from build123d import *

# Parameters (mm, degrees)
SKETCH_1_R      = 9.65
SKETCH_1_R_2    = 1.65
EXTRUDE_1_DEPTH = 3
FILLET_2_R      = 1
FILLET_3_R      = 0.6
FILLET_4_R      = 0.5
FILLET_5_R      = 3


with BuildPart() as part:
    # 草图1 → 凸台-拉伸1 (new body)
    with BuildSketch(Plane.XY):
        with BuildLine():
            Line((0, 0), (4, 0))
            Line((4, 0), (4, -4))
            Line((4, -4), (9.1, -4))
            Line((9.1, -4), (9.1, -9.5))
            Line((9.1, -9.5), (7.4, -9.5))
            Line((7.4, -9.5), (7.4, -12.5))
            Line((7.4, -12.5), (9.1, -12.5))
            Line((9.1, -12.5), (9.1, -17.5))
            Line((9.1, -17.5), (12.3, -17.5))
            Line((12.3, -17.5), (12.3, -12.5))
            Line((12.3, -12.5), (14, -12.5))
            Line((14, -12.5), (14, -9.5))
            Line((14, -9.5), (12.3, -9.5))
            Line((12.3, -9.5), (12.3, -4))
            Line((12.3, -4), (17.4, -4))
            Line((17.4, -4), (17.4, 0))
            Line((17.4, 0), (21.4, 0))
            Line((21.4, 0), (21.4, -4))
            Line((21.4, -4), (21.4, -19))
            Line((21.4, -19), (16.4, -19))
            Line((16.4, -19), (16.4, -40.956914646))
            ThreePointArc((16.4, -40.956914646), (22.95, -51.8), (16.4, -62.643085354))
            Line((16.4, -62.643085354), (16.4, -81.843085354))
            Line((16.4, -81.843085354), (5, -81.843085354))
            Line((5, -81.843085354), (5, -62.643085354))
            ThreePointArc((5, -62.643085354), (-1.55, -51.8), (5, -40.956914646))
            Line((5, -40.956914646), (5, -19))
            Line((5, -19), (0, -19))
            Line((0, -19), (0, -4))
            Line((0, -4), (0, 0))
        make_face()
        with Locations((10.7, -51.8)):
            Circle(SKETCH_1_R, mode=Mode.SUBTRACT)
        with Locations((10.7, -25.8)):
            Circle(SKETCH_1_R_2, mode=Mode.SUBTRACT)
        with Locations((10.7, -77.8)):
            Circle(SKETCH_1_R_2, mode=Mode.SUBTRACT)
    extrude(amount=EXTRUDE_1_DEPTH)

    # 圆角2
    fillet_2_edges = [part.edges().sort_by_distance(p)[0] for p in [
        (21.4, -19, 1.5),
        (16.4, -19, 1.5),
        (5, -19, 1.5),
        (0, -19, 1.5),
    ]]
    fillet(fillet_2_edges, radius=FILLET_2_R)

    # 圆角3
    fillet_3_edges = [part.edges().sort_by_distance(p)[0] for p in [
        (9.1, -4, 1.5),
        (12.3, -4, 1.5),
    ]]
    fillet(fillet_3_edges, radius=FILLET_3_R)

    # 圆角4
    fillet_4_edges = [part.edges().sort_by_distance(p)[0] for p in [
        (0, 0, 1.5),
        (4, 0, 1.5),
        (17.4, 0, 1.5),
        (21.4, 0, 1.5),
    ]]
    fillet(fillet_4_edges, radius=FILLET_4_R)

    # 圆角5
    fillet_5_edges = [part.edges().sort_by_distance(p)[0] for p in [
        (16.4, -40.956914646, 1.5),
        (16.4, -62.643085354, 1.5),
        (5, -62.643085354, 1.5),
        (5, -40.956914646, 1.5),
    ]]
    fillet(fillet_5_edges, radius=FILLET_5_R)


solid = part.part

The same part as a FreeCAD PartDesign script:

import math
import FreeCAD as App
import Part
import Sketcher
Q = App.Units.Quantity


def edges_at(feature, points):
    """Names of the edges that pass closest to the given points."""
    edges = feature.Shape.Edges
    near = lambda p: min(range(len(edges)), key=lambda i: edges[i].distToShape(Part.Vertex(*p))[0])
    return sorted({f"Edge{near(p) + 1}" for p in points})

doc = App.newDocument("Part")
params = doc.addObject("Spreadsheet::Sheet", "Params")
for row, (alias, value) in enumerate([
    ("sketch1_diameter", "3.3 mm"),
    ("sketch1_diameter2", "19.3 mm"),
    ("sketch1_width", "4 mm"),
    ("sketch1_width2", "5 mm"),
    ("sketch1_height", "19 mm"),
    ("pad1_length", "3 mm"),
    ("fillet_radius", "1 mm"),
    ("fillet2_radius", "0.6 mm"),
    ("fillet3_radius", "0.5 mm"),
    ("fillet4_radius", "3 mm"),
], start=1):
    params.set(f"A{row}", alias)
    params.set(f"B{row}", "=" + value)
    params.setAlias(f"B{row}", alias)

body = doc.addObject("PartDesign::Body", "Body")

# Sketch on XY plane
sketch1 = body.newObject("Sketcher::SketchObject", "Sketch")
sketch1.AttachmentSupport = (doc.getObject("XY_Plane"), [""])
sketch1.MapMode = "FlatFace"
sketch1.addGeometry([
    Part.LineSegment(App.Vector(4, 0, 0), App.Vector(0, 0, 0)),  # 0
    Part.LineSegment(App.Vector(0, 0, 0), App.Vector(0, -19, 0)),  # 1
    Part.LineSegment(App.Vector(0, -19, 0), App.Vector(5, -19, 0)),  # 2
    Part.LineSegment(App.Vector(5, -19, 0), App.Vector(5, -41, 0)),  # 3
    Part.ArcOfCircle(Part.Circle(App.Vector(10.7, -51.8, 0), App.Vector(0, 0, 1), 12.2), math.radians(118), math.radians(242)),  # 4
    Part.LineSegment(App.Vector(5, -62.6, 0), App.Vector(5, -81.8, 0)),  # 5
    Part.LineSegment(App.Vector(5, -81.8, 0), App.Vector(16.4, -81.8, 0)),  # 6
    Part.LineSegment(App.Vector(16.4, -81.8, 0), App.Vector(16.4, -62.6, 0)),  # 7
    Part.ArcOfCircle(Part.Circle(App.Vector(10.7, -51.8, 0), App.Vector(0, 0, 1), 12.2), math.radians(-62), math.radians(62)),  # 8
    Part.LineSegment(App.Vector(16.4, -41, 0), App.Vector(16.4, -19, 0)),  # 9
    Part.LineSegment(App.Vector(16.4, -19, 0), App.Vector(21.4, -19, 0)),  # 10
    Part.LineSegment(App.Vector(21.4, -19, 0), App.Vector(21.4, 0, 0)),  # 11
    Part.LineSegment(App.Vector(21.4, 0, 0), App.Vector(17.4, 0, 0)),  # 12
    Part.LineSegment(App.Vector(17.4, 0, 0), App.Vector(17.4, -4, 0)),  # 13
    Part.LineSegment(App.Vector(17.4, -4, 0), App.Vector(12.3, -4, 0)),  # 14
    Part.LineSegment(App.Vector(12.3, -4, 0), App.Vector(12.3, -9.5, 0)),  # 15
    Part.LineSegment(App.Vector(12.3, -9.5, 0), App.Vector(14, -9.5, 0)),  # 16
    Part.LineSegment(App.Vector(14, -9.5, 0), App.Vector(14, -12.5, 0)),  # 17
    Part.LineSegment(App.Vector(14, -12.5, 0), App.Vector(12.3, -12.5, 0)),  # 18
    Part.LineSegment(App.Vector(12.3, -12.5, 0), App.Vector(12.3, -17.5, 0)),  # 19
    Part.LineSegment(App.Vector(12.3, -17.5, 0), App.Vector(9.1, -17.5, 0)),  # 20
    Part.LineSegment(App.Vector(9.1, -17.5, 0), App.Vector(9.1, -12.5, 0)),  # 21
    Part.LineSegment(App.Vector(9.1, -12.5, 0), App.Vector(7.4, -12.5, 0)),  # 22
    Part.LineSegment(App.Vector(7.4, -12.5, 0), App.Vector(7.4, -9.5, 0)),  # 23
    Part.LineSegment(App.Vector(7.4, -9.5, 0), App.Vector(9.1, -9.5, 0)),  # 24
    Part.LineSegment(App.Vector(9.1, -9.5, 0), App.Vector(9.1, -4, 0)),  # 25
    Part.LineSegment(App.Vector(9.1, -4, 0), App.Vector(4, -4, 0)),  # 26
    Part.LineSegment(App.Vector(4, -4, 0), App.Vector(4, 0, 0)),  # 27
    Part.Circle(App.Vector(10.7, -77.8, 0), App.Vector(0, 0, 1), 1.6),  # 28
    Part.Circle(App.Vector(10.7, -51.8, 0), App.Vector(0, 0, 1), 9.7),  # 29
    Part.Circle(App.Vector(10.7, -25.8, 0), App.Vector(0, 0, 1), 1.6),  # 30
], False)
sketch1.addConstraint([
    Sketcher.Constraint("Coincident", 0, 2, 1, 1),
    Sketcher.Constraint("Coincident", 1, 2, 2, 1),
    Sketcher.Constraint("Coincident", 2, 2, 3, 1),
    Sketcher.Constraint("Coincident", 3, 2, 4, 1),
    Sketcher.Constraint("Coincident", 4, 2, 5, 1),
    Sketcher.Constraint("Coincident", 5, 2, 6, 1),
    Sketcher.Constraint("Coincident", 6, 2, 7, 1),
    Sketcher.Constraint("Coincident", 7, 2, 8, 1),
    Sketcher.Constraint("Coincident", 8, 2, 9, 1),
    Sketcher.Constraint("Coincident", 9, 2, 10, 1),
    Sketcher.Constraint("Coincident", 10, 2, 11, 1),
    Sketcher.Constraint("Coincident", 11, 2, 12, 1),
    Sketcher.Constraint("Coincident", 12, 2, 13, 1),
    Sketcher.Constraint("Coincident", 13, 2, 14, 1),
    Sketcher.Constraint("Coincident", 14, 2, 15, 1),
    Sketcher.Constraint("Coincident", 15, 2, 16, 1),
    Sketcher.Constraint("Coincident", 16, 2, 17, 1),
    Sketcher.Constraint("Coincident", 17, 2, 18, 1),
    Sketcher.Constraint("Coincident", 18, 2, 19, 1),
    Sketcher.Constraint("Coincident", 19, 2, 20, 1),
    Sketcher.Constraint("Coincident", 20, 2, 21, 1),
    Sketcher.Constraint("Coincident", 21, 2, 22, 1),
    Sketcher.Constraint("Coincident", 22, 2, 23, 1),
    Sketcher.Constraint("Coincident", 23, 2, 24, 1),
    Sketcher.Constraint("Coincident", 24, 2, 25, 1),
    Sketcher.Constraint("Coincident", 25, 2, 26, 1),
    Sketcher.Constraint("Coincident", 26, 2, 27, 1),
    Sketcher.Constraint("Coincident", 27, 2, 0, 1),
    Sketcher.Constraint("Horizontal", 0),
    Sketcher.Constraint("Vertical", 1),
    Sketcher.Constraint("Horizontal", 2),
    Sketcher.Constraint("Vertical", 3),
    Sketcher.Constraint("Vertical", 5),
    Sketcher.Constraint("Horizontal", 6),
    Sketcher.Constraint("Vertical", 7),
    Sketcher.Constraint("Vertical", 9),
    Sketcher.Constraint("Horizontal", 10),
    Sketcher.Constraint("Vertical", 11),
    Sketcher.Constraint("Horizontal", 12),
    Sketcher.Constraint("Vertical", 13),
    Sketcher.Constraint("Horizontal", 14),
    Sketcher.Constraint("Vertical", 15),
    Sketcher.Constraint("Horizontal", 16),
    Sketcher.Constraint("Vertical", 17),
    Sketcher.Constraint("Horizontal", 18),
    Sketcher.Constraint("Vertical", 19),
    Sketcher.Constraint("Horizontal", 20),
    Sketcher.Constraint("Vertical", 21),
    Sketcher.Constraint("Horizontal", 22),
    Sketcher.Constraint("Vertical", 23),
    Sketcher.Constraint("Horizontal", 24),
    Sketcher.Constraint("Vertical", 25),
    Sketcher.Constraint("Horizontal", 26),
    Sketcher.Constraint("Vertical", 27),
    Sketcher.Constraint("Coincident", 0, 2, -1, 1),
    Sketcher.Constraint("Coincident", 8, 3, 4, 3),
    Sketcher.Constraint("Coincident", 29, 3, 4, 3),
    Sketcher.Constraint("Equal", 4, 8),
    Sketcher.Constraint("Equal", 28, 30),
    Sketcher.Constraint("PointOnObject", 11, 2, -1),
    Sketcher.Constraint("Horizontal", 4, 2, 7, 2),
    Sketcher.Constraint("Horizontal", 3, 2, 8, 2),
    Sketcher.Constraint("Horizontal", 2, 2, 9, 2),
    Sketcher.Constraint("Horizontal", 18, 2, 21, 2),
    Sketcher.Constraint("Horizontal", 16, 2, 23, 2),
    Sketcher.Constraint("Horizontal", 14, 2, 25, 2),
    Sketcher.Constraint("Vertical", 8, 3, 28, 3),
    Sketcher.Constraint("Vertical", 29, 3, 30, 3),
    Sketcher.Constraint("Vertical", 3, 2, 4, 2),
    Sketcher.Constraint("Vertical", 15, 2, 18, 2),
    Sketcher.Constraint("Vertical", 21, 2, 24, 2),
    Sketcher.Constraint("Equal", 2, 10),
    Sketcher.Constraint("Equal", 0, 12),
    Sketcher.Constraint("Equal", 18, 22),
    Sketcher.Constraint("Equal", 14, 26),
    Sketcher.Constraint("Equal", 12, 13),
    Sketcher.Constraint("Equal", 10, 19),
    Sketcher.Constraint("Diameter", 28, Q("3.3 mm")),
    Sketcher.Constraint("Diameter", 29, Q("19.3 mm")),
    Sketcher.Constraint("DistanceX", 0, 2, 0, 1, Q("4 mm")),
    Sketcher.Constraint("DistanceX", 2, 1, 2, 2, Q("5 mm")),
    Sketcher.Constraint("DistanceY", 1, 2, 1, 1, Q("19 mm")),
    Sketcher.Constraint("DistanceY", 17, 2, 17, 1, Q("3 mm")),
    Sketcher.Constraint("Radius", 4, Q("12.25 mm")),
    Sketcher.Constraint("DistanceX", 6, 1, 6, 2, Q("11.4 mm")),
    Sketcher.Constraint("DistanceX", 14, 2, 14, 1, Q("5.1 mm")),
    Sketcher.Constraint("DistanceX", 16, 1, 16, 2, Q("1.7 mm")),
    Sketcher.Constraint("DistanceY", 5, 2, 5, 1, Q("19.2 mm")),
    Sketcher.Constraint("DistanceY", 15, 2, 15, 1, Q("5.5 mm")),
    Sketcher.Constraint("DistanceY", 28, 3, 4, 3, Q("26 mm")),
    Sketcher.Constraint("DistanceY", 4, 3, 30, 3, Q("26 mm")),
    Sketcher.Constraint("DistanceY", 4, 3, -1, 1, Q("51.8 mm")),
])
sketch1.setExpression("Constraints[77]", "Params.sketch1_diameter")
sketch1.setExpression("Constraints[78]", "Params.sketch1_diameter2")
sketch1.setExpression("Constraints[79]", "Params.sketch1_width")
sketch1.setExpression("Constraints[80]", "Params.sketch1_width2")
sketch1.setExpression("Constraints[81]", "Params.sketch1_height")
pad1 = body.newObject("PartDesign::Pad", "Pad")
pad1.Profile = sketch1
pad1.setExpression("Length", "Params.pad1_length")
doc.recompute()

fillet = body.newObject("PartDesign::Fillet", "Fillet")
fillet.Base = (pad1, edges_at(pad1, [
    (21.4, -19, 1.5),
    (16.4, -19, 1.5),
    (5, -19, 1.5),
    (0, -19, 1.5),
]))
fillet.setExpression("Radius", "Params.fillet_radius")
doc.recompute()

fillet2 = body.newObject("PartDesign::Fillet", "Fillet001")
fillet2.Base = (fillet, edges_at(fillet, [(9.1, -4, 1.5), (12.3, -4, 1.5)]))
fillet2.setExpression("Radius", "Params.fillet2_radius")
doc.recompute()

fillet3 = body.newObject("PartDesign::Fillet", "Fillet002")
fillet3.Base = (fillet2, edges_at(fillet2, [
    (0, 0, 1.5),
    (4, 0, 1.5),
    (17.4, 0, 1.5),
    (21.4, 0, 1.5),
]))
fillet3.setExpression("Radius", "Params.fillet3_radius")
doc.recompute()

fillet4 = body.newObject("PartDesign::Fillet", "Fillet003")
fillet4.Base = (fillet3, edges_at(fillet3, [
    (16.4, -40.957, 1.5),
    (16.4, -62.643, 1.5),
    (5, -62.643, 1.5),
    (5, -40.957, 1.5),
]))
fillet4.setExpression("Radius", "Params.fillet4_radius")

doc.recompute()
